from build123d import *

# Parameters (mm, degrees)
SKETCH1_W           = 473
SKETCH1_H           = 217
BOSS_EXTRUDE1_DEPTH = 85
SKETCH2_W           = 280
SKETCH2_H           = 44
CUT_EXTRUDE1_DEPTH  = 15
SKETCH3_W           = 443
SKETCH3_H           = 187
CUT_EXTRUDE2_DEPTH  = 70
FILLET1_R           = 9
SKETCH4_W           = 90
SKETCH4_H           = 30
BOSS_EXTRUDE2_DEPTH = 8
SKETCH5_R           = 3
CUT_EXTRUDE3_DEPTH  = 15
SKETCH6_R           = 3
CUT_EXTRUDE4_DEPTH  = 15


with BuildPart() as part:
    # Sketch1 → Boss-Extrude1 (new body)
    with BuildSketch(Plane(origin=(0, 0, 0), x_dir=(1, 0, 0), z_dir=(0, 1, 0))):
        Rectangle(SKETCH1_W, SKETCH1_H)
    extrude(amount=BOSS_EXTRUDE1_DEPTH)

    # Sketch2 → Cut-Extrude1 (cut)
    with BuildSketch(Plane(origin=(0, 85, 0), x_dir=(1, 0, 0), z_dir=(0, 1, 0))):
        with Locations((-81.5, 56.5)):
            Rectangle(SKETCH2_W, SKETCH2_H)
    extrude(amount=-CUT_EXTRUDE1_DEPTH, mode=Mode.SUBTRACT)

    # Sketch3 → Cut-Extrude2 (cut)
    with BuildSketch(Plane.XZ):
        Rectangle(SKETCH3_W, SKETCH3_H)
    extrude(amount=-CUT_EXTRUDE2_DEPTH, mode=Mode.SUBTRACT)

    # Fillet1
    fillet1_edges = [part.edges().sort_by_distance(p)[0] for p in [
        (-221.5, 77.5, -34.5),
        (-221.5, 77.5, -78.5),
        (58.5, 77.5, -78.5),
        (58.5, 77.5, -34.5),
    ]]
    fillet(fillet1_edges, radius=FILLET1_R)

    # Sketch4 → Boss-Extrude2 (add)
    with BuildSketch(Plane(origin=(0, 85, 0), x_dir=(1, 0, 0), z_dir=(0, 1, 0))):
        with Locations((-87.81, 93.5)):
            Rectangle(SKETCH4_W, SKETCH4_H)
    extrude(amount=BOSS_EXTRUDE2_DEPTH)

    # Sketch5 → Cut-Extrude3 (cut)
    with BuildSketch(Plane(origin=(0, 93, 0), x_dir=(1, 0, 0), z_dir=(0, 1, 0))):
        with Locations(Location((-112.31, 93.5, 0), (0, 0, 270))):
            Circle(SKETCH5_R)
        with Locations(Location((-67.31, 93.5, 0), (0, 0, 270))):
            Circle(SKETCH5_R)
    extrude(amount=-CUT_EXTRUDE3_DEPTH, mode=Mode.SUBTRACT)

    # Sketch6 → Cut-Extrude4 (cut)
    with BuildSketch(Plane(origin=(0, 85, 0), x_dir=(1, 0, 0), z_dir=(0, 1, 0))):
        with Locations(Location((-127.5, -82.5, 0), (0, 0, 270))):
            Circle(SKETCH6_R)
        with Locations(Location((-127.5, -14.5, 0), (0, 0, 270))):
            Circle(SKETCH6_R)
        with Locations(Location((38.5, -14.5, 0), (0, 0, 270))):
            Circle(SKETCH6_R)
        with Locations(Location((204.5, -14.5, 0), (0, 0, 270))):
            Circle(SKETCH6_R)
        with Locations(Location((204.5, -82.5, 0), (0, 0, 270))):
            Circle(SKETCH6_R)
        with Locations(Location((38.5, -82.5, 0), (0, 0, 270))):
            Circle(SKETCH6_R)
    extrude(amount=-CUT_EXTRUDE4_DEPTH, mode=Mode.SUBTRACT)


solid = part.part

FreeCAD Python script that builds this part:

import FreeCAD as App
import Part
import Sketcher

V = App.Vector


def edges_at(feature, points):
    """Names of the edges that pass closest to the given points."""
    edges = feature.Shape.Edges
    near = lambda p: min(range(len(edges)), key=lambda i: edges[i].distToShape(Part.Vertex(*p))[0])
    return sorted({f"Edge{near(p) + 1}" for p in points})

doc = App.newDocument("Part")
body = doc.addObject("PartDesign::Body", "Body")

sketch1 = body.newObject("Sketcher::SketchObject", "Sketch")
sketch1.AttachmentSupport = (doc.getObject("XZ_Plane"), [""])
sketch1.MapMode = "FlatFace"
sketch1.addGeometry(Part.LineSegment(V(-236, -108, 0), V(-236, 108, 0)), False)
sketch1.addGeometry(Part.LineSegment(V(-236, 108, 0), V(236, 108, 0)), False)
sketch1.addGeometry(Part.LineSegment(V(236, 108, 0), V(236, -108, 0)), False)
sketch1.addGeometry(Part.LineSegment(V(236, -108, 0), V(-236, -108, 0)), False)
sketch1.addConstraint(Sketcher.Constraint("Coincident", 0, 2, 1, 1))
sketch1.addConstraint(Sketcher.Constraint("Coincident", 1, 2, 2, 1))
sketch1.addConstraint(Sketcher.Constraint("Coincident", 2, 2, 3, 1))
sketch1.addConstraint(Sketcher.Constraint("Coincident", 3, 2, 0, 1))
sketch1.addConstraint(Sketcher.Constraint("Vertical", 0))
sketch1.addConstraint(Sketcher.Constraint("Horizontal", 1))
sketch1.addConstraint(Sketcher.Constraint("Vertical", 2))
sketch1.addConstraint(Sketcher.Constraint("Horizontal", 3))
sketch1.addConstraint(Sketcher.Constraint("Symmetric", 0, 2, 2, 2, -1, 1))
sketch1.addConstraint(Sketcher.Constraint("DistanceX", 1, 1, 1, 2, 473.0))
sketch1.addConstraint(Sketcher.Constraint("DistanceY", 0, 1, 0, 2, 217.0))
pad1 = body.newObject("PartDesign::Pad", "Pad")
pad1.Profile = sketch1
pad1.Length = 85
pad1.Reversed = True

sketch2 = body.newObject("Sketcher::SketchObject", "Sketch001")
sketch2.AttachmentSupport = (doc.getObject("XZ_Plane"), [""])
sketch2.MapMode = "FlatFace"
sketch2.AttachmentOffset = App.Placement(V(0, 0, -85), App.Rotation())
sketch2.addGeometry(Part.LineSegment(V(-222, -78, 0), V(-222, -34, 0)), False)
sketch2.addGeometry(Part.LineSegment(V(-222, -34, 0), V(58, -34, 0)), False)
sketch2.addGeometry(Part.LineSegment(V(58, -34, 0), V(58, -78, 0)), False)
sketch2.addGeometry(Part.LineSegment(V(58, -78, 0), V(-222, -78, 0)), False)
sketch2.addConstraint(Sketcher.Constraint("Coincident", 0, 2, 1, 1))
sketch2.addConstraint(Sketcher.Constraint("Coincident", 1, 2, 2, 1))
sketch2.addConstraint(Sketcher.Constraint("Coincident", 2, 2, 3, 1))
sketch2.addConstraint(Sketcher.Constraint("Coincident", 3, 2, 0, 1))
sketch2.addConstraint(Sketcher.Constraint("Vertical", 0))
sketch2.addConstraint(Sketcher.Constraint("Horizontal", 1))
sketch2.addConstraint(Sketcher.Constraint("Vertical", 2))
sketch2.addConstraint(Sketcher.Constraint("Horizontal", 3))
sketch2.addConstraint(Sketcher.Constraint("DistanceX", 1, 1, 1, 2, 280.0))
sketch2.addConstraint(Sketcher.Constraint("DistanceY", 0, 1, 0, 2, 44.0))
sketch2.addConstraint(Sketcher.Constraint("DistanceX", 0, 2, -1, 1, 221.5))
sketch2.addConstraint(Sketcher.Constraint("DistanceY", 0, 2, -1, 1, 34.5))
pocket1 = body.newObject("PartDesign::Pocket", "Pocket")
pocket1.Profile = sketch2
pocket1.Length = 15
pocket1.Reversed = True

sketch3 = body.newObject("Sketcher::SketchObject", "Sketch002")
sketch3.AttachmentSupport = (doc.getObject("XZ_Plane"), [""])
sketch3.MapMode = "FlatFace"
sketch3.addGeometry(Part.LineSegment(V(-222, 94, 0), V(-222, -94, 0)), False)
sketch3.addGeometry(Part.LineSegment(V(-222, -94, 0), V(222, -94, 0)), False)
sketch3.addGeometry(Part.LineSegment(V(222, -94, 0), V(222, 94, 0)), False)
sketch3.addGeometry(Part.LineSegment(V(222, 94, 0), V(-222, 94, 0)), False)
sketch3.addConstraint(Sketcher.Constraint("Coincident", 0, 2, 1, 1))
sketch3.addConstraint(Sketcher.Constraint("Coincident", 1, 2, 2, 1))
sketch3.addConstraint(Sketcher.Constraint("Coincident", 2, 2, 3, 1))
sketch3.addConstraint(Sketcher.Constraint("Coincident", 3, 2, 0, 1))
sketch3.addConstraint(Sketcher.Constraint("Vertical", 0))
sketch3.addConstraint(Sketcher.Constraint("Horizontal", 1))
sketch3.addConstraint(Sketcher.Constraint("Vertical", 2))
sketch3.addConstraint(Sketcher.Constraint("Horizontal", 3))
sketch3.addConstraint(Sketcher.Constraint("Symmetric", 0, 2, 2, 2, -1, 1))
sketch3.addConstraint(Sketcher.Constraint("DistanceX", 1, 1, 1, 2, 443.0))
sketch3.addConstraint(Sketcher.Constraint("DistanceY", 0, 2, 0, 1, 187.0))
pocket2 = body.newObject("PartDesign::Pocket", "Pocket001")
pocket2.Profile = sketch3
pocket2.Length = 70
doc.recompute()

fillet = body.newObject("PartDesign::Fillet", "Fillet")
fillet.Base = (pocket2, edges_at(pocket2, [
    (-221.5, 77.5, -34.5),
    (-221.5, 77.5, -78.5),
    (58.5, 77.5, -78.5),
    (58.5, 77.5, -34.5),
]))
fillet.Radius = 9

sketch4 = body.newObject("Sketcher::SketchObject", "Sketch003")
sketch4.AttachmentSupport = (doc.getObject("XZ_Plane"), [""])
sketch4.MapMode = "FlatFace"
sketch4.AttachmentOffset = App.Placement(V(0, 0, -85), App.Rotation())
sketch4.addGeometry(Part.LineSegment(V(-133, -108, 0), V(-133, -78, 0)), False)
sketch4.addGeometry(Part.LineSegment(V(-133, -78, 0), V(-43, -78, 0)), False)
sketch4.addGeometry(Part.LineSegment(V(-43, -78, 0), V(-43, -108, 0)), False)
sketch4.addGeometry(Part.LineSegment(V(-43, -108, 0), V(-133, -108, 0)), False)
sketch4.addConstraint(Sketcher.Constraint("Coincident", 0, 2, 1, 1))
sketch4.addConstraint(Sketcher.Constraint("Coincident", 1, 2, 2, 1))
sketch4.addConstraint(Sketcher.Constraint("Coincident", 2, 2, 3, 1))
sketch4.addConstraint(Sketcher.Constraint("Coincident", 3, 2, 0, 1))
sketch4.addConstraint(Sketcher.Constraint("Vertical", 0))
sketch4.addConstraint(Sketcher.Constraint("Horizontal", 1))
sketch4.addConstraint(Sketcher.Constraint("Vertical", 2))
sketch4.addConstraint(Sketcher.Constraint("Horizontal", 3))
sketch4.addConstraint(Sketcher.Constraint("DistanceX", 1, 1, 1, 2, 90.0))
sketch4.addConstraint(Sketcher.Constraint("DistanceY", 0, 1, 0, 2, 30.0))
sketch4.addConstraint(Sketcher.Constraint("DistanceY", 0, 2, -1, 1, 78.5))
sketch4.addConstraint(Sketcher.Constraint("DistanceX", 0, 2, -1, 1, 132.81))
pad2 = body.newObject("PartDesign::Pad", "Pad001")
pad2.Profile = sketch4
pad2.Length = 8
pad2.Reversed = True

sketch5 = body.newObject("Sketcher::SketchObject", "Sketch004")
sketch5.AttachmentSupport = (doc.getObject("XZ_Plane"), [""])
sketch5.MapMode = "FlatFace"
sketch5.AttachmentOffset = App.Placement(V(0, 0, -93), App.Rotation())
sketch5.addGeometry(Part.Circle(V(-112.3, -93.5, 0), V(0, 0, 1), 3), False)
sketch5.addGeometry(Part.Circle(V(-67.3, -93.5, 0), V(0, 0, 1), 3), False)
sketch5.addConstraint(Sketcher.Constraint("Equal", 0, 1))
sketch5.addConstraint(Sketcher.Constraint("Horizontal", 0, 3, 1, 3))
sketch5.addConstraint(Sketcher.Constraint("Diameter", 0, 6.0))
sketch5.addConstraint(Sketcher.Constraint("DistanceX", 0, 3, 1, 3, 45.0))
sketch5.addConstraint(Sketcher.Constraint("DistanceY", 0, 3, -1, 1, 93.5))
sketch5.addConstraint(Sketcher.Constraint("DistanceX", 0, 3, -1, 1, 112.31))
pocket3 = body.newObject("PartDesign::Pocket", "Pocket002")
pocket3.Profile = sketch5
pocket3.Length = 15
pocket3.Reversed = True

sketch6 = body.newObject("Sketcher::SketchObject", "Sketch005")
sketch6.AttachmentSupport = (doc.getObject("XZ_Plane"), [""])
sketch6.MapMode = "FlatFace"
sketch6.AttachmentOffset = App.Placement(V(0, 0, -85), App.Rotation())
sketch6.addGeometry(Part.Circle(V(-127.5, 82.5, 0), V(0, 0, 1), 3), False)
sketch6.addGeometry(Part.Circle(V(-127.5, 14.5, 0), V(0, 0, 1), 3), False)
sketch6.addGeometry(Part.Circle(V(38.5, 14.5, 0), V(0, 0, 1), 3), False)
sketch6.addGeometry(Part.Circle(V(204.5, 14.5, 0), V(0, 0, 1), 3), False)
sketch6.addGeometry(Part.Circle(V(204.5, 82.5, 0), V(0, 0, 1), 3), False)
sketch6.addGeometry(Part.Circle(V(38.5, 82.5, 0), V(0, 0, 1), 3), False)
sketch6.addConstraint(Sketcher.Constraint("Equal", 0, 1))
sketch6.addConstraint(Sketcher.Constraint("Equal", 1, 2))
sketch6.addConstraint(Sketcher.Constraint("Equal", 2, 3))
sketch6.addConstraint(Sketcher.Constraint("Equal", 3, 4))
sketch6.addConstraint(Sketcher.Constraint("Equal", 4, 5))
sketch6.addConstraint(Sketcher.Constraint("Horizontal", 1, 3, 2, 3))
sketch6.addConstraint(Sketcher.Constraint("Horizontal", 2, 3, 3, 3))
sketch6.addConstraint(Sketcher.Constraint("Horizontal", 0, 3, 4, 3))
sketch6.addConstraint(Sketcher.Constraint("Horizontal", 4, 3, 5, 3))
sketch6.addConstraint(Sketcher.Constraint("Vertical", 0, 3, 1, 3))
sketch6.addConstraint(Sketcher.Constraint("Vertical", 3, 3, 4, 3))
sketch6.addConstraint(Sketcher.Constraint("Vertical", 2, 3, 5, 3))
sketch6.addConstraint(Sketcher.Constraint("Diameter", 0, 6.0))
sketch6.addConstraint(Sketcher.Constraint("DistanceY", 1, 3, 0, 3, 68.0))
sketch6.addConstraint(Sketcher.Constraint("DistanceX", 1, 3, 2, 3, 166.0))
sketch6.addConstraint(Sketcher.Constraint("DistanceX", 2, 3, 3, 3, 166.0))
sketch6.addConstraint(Sketcher.Constraint("DistanceX", 0, 3, -1, 1, 127.5))
sketch6.addConstraint(Sketcher.Constraint("DistanceY", -1, 1, 0, 3, 82.5))
pocket4 = body.newObject("PartDesign::Pocket", "Pocket003")
pocket4.Profile = sketch6
pocket4.Length = 15
pocket4.Reversed = True

doc.recompute()
